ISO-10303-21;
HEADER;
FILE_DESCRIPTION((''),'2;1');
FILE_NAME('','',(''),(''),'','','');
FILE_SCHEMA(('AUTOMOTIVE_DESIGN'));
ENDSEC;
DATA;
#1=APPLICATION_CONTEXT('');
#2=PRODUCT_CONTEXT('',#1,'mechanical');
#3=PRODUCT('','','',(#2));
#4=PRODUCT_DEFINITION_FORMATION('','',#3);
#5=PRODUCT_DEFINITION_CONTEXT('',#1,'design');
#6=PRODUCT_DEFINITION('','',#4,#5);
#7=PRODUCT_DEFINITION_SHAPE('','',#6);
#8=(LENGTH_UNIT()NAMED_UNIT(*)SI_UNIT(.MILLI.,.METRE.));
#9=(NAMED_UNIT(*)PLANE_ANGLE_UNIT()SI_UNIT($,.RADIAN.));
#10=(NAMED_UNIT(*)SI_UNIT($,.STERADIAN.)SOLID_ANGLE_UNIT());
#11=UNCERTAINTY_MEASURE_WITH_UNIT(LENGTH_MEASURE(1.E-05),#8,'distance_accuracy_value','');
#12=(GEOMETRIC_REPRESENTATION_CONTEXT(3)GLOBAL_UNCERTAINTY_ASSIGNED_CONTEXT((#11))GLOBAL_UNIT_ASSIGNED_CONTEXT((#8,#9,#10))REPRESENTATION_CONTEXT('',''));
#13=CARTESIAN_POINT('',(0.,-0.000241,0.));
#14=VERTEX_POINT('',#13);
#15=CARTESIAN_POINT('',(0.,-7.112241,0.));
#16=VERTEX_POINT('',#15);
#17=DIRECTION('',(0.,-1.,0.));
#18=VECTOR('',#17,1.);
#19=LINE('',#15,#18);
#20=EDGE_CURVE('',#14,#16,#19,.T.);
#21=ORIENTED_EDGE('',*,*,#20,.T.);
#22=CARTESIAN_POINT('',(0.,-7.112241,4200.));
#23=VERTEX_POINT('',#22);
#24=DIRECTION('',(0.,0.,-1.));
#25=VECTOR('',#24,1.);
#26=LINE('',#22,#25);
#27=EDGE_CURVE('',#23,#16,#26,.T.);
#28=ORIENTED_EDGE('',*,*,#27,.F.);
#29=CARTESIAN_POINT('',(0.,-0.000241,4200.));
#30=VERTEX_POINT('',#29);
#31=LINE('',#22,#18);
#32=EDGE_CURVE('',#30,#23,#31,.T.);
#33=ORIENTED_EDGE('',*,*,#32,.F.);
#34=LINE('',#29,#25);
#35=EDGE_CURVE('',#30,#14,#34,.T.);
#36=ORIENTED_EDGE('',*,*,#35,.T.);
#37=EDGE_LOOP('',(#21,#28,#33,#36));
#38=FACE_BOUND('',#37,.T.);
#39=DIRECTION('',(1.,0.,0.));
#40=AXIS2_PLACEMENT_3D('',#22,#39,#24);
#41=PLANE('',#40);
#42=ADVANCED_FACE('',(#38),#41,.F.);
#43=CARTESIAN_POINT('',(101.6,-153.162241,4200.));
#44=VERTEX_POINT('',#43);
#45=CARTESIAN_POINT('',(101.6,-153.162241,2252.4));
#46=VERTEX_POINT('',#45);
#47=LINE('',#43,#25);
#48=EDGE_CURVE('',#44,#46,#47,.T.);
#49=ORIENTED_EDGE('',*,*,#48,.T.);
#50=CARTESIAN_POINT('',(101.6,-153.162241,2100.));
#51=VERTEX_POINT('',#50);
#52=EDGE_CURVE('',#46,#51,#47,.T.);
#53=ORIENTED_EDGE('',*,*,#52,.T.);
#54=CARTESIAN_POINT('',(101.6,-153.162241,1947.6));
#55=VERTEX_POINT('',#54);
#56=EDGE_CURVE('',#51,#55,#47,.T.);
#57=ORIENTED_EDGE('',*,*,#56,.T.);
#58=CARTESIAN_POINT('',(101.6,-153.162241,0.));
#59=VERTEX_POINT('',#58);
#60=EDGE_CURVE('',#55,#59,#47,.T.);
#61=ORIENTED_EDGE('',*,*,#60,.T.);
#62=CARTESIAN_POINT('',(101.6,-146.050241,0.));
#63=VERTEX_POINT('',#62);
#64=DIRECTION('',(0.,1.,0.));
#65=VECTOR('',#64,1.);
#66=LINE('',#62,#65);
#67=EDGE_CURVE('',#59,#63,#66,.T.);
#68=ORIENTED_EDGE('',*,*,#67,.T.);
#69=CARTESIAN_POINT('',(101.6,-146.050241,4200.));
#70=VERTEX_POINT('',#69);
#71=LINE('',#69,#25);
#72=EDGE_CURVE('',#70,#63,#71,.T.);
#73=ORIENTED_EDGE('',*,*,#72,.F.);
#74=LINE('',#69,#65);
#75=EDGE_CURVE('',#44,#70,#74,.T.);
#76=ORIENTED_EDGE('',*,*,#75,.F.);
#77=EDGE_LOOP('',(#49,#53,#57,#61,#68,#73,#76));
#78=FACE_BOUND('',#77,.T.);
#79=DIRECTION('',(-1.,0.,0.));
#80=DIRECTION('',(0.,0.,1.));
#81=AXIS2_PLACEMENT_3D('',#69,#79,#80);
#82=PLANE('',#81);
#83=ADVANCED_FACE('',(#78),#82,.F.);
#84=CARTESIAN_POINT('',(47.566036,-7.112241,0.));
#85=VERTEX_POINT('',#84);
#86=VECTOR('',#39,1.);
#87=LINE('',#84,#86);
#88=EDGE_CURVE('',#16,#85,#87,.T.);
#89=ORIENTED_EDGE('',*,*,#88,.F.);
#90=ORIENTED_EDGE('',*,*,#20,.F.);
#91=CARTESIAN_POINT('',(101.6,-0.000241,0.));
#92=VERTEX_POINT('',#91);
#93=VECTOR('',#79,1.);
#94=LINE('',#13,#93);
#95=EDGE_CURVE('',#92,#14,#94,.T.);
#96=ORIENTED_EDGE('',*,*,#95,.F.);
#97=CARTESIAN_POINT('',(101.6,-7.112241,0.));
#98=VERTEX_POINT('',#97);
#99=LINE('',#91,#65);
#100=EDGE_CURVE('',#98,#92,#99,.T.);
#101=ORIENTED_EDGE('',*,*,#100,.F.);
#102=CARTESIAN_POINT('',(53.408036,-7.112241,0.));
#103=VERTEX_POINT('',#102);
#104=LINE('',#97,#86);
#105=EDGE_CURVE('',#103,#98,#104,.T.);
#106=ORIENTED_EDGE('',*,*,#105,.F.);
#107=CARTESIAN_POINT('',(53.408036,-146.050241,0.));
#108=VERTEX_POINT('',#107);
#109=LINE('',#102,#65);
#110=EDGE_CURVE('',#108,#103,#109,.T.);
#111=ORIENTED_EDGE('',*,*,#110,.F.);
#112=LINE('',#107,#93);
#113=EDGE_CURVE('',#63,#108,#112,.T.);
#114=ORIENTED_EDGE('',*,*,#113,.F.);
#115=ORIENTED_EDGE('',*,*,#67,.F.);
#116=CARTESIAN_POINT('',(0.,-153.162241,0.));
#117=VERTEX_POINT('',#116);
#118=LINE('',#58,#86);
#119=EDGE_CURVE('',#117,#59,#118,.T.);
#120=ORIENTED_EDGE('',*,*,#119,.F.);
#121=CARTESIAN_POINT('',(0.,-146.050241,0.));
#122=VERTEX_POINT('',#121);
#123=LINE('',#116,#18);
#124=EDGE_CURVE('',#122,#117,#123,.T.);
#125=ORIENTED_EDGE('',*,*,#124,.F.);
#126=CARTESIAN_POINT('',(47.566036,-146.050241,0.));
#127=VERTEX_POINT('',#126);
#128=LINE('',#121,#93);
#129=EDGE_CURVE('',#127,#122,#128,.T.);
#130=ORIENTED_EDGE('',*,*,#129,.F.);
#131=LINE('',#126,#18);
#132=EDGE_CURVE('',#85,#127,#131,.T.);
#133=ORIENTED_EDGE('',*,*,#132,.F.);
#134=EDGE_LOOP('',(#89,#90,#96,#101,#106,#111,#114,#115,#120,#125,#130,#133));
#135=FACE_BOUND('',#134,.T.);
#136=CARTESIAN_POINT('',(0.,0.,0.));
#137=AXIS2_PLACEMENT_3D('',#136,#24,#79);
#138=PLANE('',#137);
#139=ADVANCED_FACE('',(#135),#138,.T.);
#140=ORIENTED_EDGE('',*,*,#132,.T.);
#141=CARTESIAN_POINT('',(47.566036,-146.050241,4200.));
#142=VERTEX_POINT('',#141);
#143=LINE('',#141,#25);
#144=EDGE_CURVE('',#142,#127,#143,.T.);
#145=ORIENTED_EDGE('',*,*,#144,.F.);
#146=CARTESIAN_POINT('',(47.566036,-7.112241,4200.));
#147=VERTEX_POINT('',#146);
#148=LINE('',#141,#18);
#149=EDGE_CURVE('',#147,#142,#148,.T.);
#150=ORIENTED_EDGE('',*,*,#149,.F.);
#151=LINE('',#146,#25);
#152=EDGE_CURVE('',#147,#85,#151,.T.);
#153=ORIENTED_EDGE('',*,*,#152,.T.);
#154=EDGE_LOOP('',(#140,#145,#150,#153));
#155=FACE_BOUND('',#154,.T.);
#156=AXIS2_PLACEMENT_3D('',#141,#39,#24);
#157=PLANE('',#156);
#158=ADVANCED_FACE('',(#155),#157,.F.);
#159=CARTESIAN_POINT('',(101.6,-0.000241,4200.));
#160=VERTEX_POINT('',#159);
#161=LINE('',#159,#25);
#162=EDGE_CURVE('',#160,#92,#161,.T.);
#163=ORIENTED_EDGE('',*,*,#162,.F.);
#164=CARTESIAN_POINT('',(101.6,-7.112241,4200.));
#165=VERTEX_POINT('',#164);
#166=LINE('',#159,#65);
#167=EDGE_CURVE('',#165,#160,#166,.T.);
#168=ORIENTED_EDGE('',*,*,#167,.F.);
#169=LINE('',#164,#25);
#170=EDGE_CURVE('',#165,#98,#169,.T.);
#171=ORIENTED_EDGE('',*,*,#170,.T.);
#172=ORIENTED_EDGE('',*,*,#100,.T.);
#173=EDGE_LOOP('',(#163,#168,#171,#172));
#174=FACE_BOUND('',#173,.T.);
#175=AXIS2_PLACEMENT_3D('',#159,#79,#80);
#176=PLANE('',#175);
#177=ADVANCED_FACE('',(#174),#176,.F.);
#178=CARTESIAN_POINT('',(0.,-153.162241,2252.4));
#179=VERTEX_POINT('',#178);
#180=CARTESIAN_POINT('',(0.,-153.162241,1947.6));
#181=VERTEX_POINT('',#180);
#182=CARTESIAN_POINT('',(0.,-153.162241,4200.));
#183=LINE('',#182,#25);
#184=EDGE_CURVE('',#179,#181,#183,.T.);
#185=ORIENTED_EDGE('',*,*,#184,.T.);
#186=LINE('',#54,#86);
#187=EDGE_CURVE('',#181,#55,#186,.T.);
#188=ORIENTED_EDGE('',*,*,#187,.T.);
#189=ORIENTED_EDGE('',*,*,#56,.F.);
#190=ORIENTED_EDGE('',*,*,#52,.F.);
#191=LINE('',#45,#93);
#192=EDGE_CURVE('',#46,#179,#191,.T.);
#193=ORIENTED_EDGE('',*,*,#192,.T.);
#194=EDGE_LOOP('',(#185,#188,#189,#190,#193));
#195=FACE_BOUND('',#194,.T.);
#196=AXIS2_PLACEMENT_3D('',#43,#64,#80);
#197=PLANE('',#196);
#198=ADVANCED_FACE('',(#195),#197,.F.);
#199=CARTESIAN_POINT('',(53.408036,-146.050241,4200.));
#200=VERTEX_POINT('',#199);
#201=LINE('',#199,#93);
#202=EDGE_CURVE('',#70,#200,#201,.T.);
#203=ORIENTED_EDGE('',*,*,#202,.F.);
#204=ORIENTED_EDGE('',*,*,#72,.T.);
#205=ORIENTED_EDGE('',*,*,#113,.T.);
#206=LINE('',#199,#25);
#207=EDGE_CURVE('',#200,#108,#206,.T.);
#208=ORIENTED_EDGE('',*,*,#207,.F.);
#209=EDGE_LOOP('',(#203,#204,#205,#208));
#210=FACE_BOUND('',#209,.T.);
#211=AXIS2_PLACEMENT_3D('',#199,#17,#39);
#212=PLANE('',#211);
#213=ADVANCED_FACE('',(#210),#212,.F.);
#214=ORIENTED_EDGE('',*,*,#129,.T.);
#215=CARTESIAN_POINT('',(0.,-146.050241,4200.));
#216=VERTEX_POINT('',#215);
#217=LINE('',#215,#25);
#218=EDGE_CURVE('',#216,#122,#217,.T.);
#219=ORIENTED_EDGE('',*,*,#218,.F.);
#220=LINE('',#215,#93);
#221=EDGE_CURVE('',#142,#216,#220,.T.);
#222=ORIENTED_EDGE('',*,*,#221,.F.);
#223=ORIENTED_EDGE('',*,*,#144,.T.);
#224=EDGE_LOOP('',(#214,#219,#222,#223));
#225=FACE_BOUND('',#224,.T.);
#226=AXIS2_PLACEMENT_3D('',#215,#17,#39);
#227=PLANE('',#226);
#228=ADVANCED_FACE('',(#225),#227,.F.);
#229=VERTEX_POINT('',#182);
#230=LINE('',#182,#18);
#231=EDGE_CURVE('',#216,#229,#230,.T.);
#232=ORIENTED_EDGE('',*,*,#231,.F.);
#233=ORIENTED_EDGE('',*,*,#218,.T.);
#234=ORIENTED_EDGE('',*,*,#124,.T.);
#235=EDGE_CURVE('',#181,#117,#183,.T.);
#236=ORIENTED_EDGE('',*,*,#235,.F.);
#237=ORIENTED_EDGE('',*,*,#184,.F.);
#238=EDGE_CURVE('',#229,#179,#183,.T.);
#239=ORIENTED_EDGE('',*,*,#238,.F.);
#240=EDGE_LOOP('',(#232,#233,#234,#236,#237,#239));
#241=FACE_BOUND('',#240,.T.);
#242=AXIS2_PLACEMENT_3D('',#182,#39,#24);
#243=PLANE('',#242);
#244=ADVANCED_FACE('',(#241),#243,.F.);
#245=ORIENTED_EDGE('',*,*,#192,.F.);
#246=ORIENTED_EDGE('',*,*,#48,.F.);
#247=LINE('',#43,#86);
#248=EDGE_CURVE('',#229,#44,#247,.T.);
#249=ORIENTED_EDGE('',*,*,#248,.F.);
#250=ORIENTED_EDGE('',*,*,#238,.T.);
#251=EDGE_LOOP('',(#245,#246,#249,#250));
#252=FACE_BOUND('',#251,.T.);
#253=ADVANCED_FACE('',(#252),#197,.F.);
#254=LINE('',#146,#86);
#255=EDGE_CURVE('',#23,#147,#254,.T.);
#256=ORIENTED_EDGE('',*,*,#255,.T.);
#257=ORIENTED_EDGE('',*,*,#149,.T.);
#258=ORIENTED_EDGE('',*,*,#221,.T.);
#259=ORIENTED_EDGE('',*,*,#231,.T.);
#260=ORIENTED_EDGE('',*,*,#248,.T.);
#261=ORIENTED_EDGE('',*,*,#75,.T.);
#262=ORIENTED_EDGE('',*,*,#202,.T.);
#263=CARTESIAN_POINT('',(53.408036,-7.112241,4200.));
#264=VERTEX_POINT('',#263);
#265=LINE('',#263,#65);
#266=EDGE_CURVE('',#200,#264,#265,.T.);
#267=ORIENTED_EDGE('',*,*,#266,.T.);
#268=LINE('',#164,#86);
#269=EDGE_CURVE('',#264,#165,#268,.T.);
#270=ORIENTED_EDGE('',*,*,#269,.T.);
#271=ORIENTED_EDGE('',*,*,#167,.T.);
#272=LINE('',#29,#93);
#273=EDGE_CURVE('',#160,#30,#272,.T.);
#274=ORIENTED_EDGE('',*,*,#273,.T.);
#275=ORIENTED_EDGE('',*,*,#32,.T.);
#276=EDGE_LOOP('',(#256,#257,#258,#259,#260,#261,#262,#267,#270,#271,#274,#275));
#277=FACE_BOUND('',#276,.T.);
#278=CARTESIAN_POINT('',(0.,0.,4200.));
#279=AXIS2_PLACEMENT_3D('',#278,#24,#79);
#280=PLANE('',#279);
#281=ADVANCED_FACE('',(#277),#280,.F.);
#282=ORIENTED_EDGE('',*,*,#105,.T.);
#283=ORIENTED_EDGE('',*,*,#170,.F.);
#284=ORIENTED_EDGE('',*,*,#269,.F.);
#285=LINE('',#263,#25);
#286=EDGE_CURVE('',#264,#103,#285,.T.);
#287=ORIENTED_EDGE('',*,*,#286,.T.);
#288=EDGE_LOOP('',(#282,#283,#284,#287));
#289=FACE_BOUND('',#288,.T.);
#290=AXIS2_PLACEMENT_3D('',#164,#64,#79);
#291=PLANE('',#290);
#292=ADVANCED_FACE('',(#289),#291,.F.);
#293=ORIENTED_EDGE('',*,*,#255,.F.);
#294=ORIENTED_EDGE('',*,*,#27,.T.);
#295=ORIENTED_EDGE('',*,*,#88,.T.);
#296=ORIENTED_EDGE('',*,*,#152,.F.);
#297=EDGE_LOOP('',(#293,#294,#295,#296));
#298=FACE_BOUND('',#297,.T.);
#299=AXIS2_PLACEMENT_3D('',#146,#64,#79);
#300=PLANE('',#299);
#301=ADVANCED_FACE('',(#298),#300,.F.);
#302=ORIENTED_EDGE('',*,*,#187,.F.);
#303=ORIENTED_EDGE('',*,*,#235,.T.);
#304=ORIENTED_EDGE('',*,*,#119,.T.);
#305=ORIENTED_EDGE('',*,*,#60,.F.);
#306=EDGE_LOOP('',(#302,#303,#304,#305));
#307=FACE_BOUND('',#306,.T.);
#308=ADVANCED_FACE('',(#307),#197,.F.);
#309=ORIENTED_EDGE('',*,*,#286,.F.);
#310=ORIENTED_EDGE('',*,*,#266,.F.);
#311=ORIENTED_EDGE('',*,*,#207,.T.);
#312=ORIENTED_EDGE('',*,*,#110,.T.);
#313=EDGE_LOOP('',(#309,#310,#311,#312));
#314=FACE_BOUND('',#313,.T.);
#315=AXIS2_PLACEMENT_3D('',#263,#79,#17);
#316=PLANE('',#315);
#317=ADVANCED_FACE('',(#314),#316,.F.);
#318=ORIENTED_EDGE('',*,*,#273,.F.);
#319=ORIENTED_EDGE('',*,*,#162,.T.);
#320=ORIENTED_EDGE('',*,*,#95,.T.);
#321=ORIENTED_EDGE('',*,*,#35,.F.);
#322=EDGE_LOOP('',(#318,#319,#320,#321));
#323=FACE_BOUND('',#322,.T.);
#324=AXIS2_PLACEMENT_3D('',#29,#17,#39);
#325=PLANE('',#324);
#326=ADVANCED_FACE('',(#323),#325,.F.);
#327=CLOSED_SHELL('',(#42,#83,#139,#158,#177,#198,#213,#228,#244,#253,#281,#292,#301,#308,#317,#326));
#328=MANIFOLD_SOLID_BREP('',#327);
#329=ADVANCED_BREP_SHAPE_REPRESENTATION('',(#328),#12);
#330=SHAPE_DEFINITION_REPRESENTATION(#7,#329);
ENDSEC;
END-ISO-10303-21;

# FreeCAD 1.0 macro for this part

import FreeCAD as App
import Part
import Sketcher

V = App.Vector
Q = App.Units.Quantity

doc = App.newDocument("Part")
body = doc.addObject("PartDesign::Body", "Body")

sketch1 = doc.addObject("Sketcher::SketchObject", "Sketch")
body.addObject(sketch1)
sketch1.AttachmentSupport = (doc.XY_Plane, [""])
sketch1.MapMode = "FlatFace"
sketch1.addGeometry(Part.LineSegment(V(101.6, -0.000241, 0), V(0, -0.000241, 0)), False)
sketch1.addGeometry(Part.LineSegment(V(0, -0.000241, 0), V(0, -7.112241, 0)), False)
sketch1.addGeometry(Part.LineSegment(V(0, -7.112241, 0), V(47.566036, -7.112241, 0)), False)
sketch1.addGeometry(Part.LineSegment(V(47.566036, -7.112241, 0), V(47.566036, -146.050241, 0)), False)
sketch1.addGeometry(Part.LineSegment(V(47.566036, -146.050241, 0), V(0, -146.050241, 0)), False)
sketch1.addGeometry(Part.LineSegment(V(0, -146.050241, 0), V(0, -153.162241, 0)), False)
sketch1.addGeometry(Part.LineSegment(V(0, -153.162241, 0), V(101.6, -153.162241, 0)), False)
sketch1.addGeometry(Part.LineSegment(V(101.6, -153.162241, 0), V(101.6, -146.050241, 0)), False)
sketch1.addGeometry(Part.LineSegment(V(101.6, -146.050241, 0), V(53.408036, -146.050241, 0)), False)
sketch1.addGeometry(Part.LineSegment(V(53.408036, -146.050241, 0), V(53.408036, -7.112241, 0)), False)
sketch1.addGeometry(Part.LineSegment(V(53.408036, -7.112241, 0), V(101.6, -7.112241, 0)), False)
sketch1.addGeometry(Part.LineSegment(V(101.6, -7.112241, 0), V(101.6, -0.000241, 0)), False)
sketch1.addConstraint(Sketcher.Constraint("Coincident", 0, 2, 1, 1))
sketch1.addConstraint(Sketcher.Constraint("Coincident", 1, 2, 2, 1))
sketch1.addConstraint(Sketcher.Constraint("Coincident", 2, 2, 3, 1))
sketch1.addConstraint(Sketcher.Constraint("Coincident", 3, 2, 4, 1))
sketch1.addConstraint(Sketcher.Constraint("Coincident", 4, 2, 5, 1))
sketch1.addConstraint(Sketcher.Constraint("Coincident", 5, 2, 6, 1))
sketch1.addConstraint(Sketcher.Constraint("Coincident", 6, 2, 7, 1))
sketch1.addConstraint(Sketcher.Constraint("Coincident", 7, 2, 8, 1))
sketch1.addConstraint(Sketcher.Constraint("Coincident", 8, 2, 9, 1))
sketch1.addConstraint(Sketcher.Constraint("Coincident", 9, 2, 10, 1))
sketch1.addConstraint(Sketcher.Constraint("Coincident", 10, 2, 11, 1))
sketch1.addConstraint(Sketcher.Constraint("Coincident", 11, 2, 0, 1))
sketch1.addConstraint(Sketcher.Constraint("Horizontal", 0))
sketch1.addConstraint(Sketcher.Constraint("Vertical", 1))
sketch1.addConstraint(Sketcher.Constraint("Horizontal", 2))
sketch1.addConstraint(Sketcher.Constraint("Vertical", 3))
sketch1.addConstraint(Sketcher.Constraint("Horizontal", 4))
sketch1.addConstraint(Sketcher.Constraint("Vertical", 5))
sketch1.addConstraint(Sketcher.Constraint("Horizontal", 6))
sketch1.addConstraint(Sketcher.Constraint("Vertical", 7))
sketch1.addConstraint(Sketcher.Constraint("Horizontal", 8))
sketch1.addConstraint(Sketcher.Constraint("Vertical", 9))
sketch1.addConstraint(Sketcher.Constraint("Horizontal", 10))
sketch1.addConstraint(Sketcher.Constraint("Vertical", 11))
sketch1.addConstraint(Sketcher.Constraint("PointOnObject", 0, 2, -2))
sketch1.addConstraint(Sketcher.Constraint("PointOnObject", 4, 2, -2))
sketch1.addConstraint(Sketcher.Constraint("Horizontal", 4, 2, 7, 2))
sketch1.addConstraint(Sketcher.Constraint("Horizontal", 2, 2, 9, 2))
sketch1.addConstraint(Sketcher.Constraint("Vertical", 7, 2, 10, 2))
sketch1.addConstraint(Sketcher.Constraint("Equal", 1, 5))
sketch1.addConstraint(Sketcher.Constraint("DistanceX", 0, 2, 0, 1, Q("4 in")))
sketch1.addConstraint(Sketcher.Constraint("DistanceY", 1, 2, 1, 1, Q("0.28 in")))
sketch1.addConstraint(Sketcher.Constraint("DistanceY", 3, 2, 3, 1, Q("5.47 in")))
sketch1.addConstraint(Sketcher.Constraint("DistanceX", 3, 2, 8, 2, Q("0.23 in")))
sketch1.addConstraint(Sketcher.Constraint("DistanceX", 2, 1, 2, 2, 47.566036))
sketch1.addConstraint(Sketcher.Constraint("DistanceY", 0, 2, -1, 1, 0.000241))
pad1 = doc.addObject("PartDesign::Pad", "Pad")
body.addObject(pad1)
pad1.Profile = sketch1
pad1.Length = 4200

doc.recompute()
